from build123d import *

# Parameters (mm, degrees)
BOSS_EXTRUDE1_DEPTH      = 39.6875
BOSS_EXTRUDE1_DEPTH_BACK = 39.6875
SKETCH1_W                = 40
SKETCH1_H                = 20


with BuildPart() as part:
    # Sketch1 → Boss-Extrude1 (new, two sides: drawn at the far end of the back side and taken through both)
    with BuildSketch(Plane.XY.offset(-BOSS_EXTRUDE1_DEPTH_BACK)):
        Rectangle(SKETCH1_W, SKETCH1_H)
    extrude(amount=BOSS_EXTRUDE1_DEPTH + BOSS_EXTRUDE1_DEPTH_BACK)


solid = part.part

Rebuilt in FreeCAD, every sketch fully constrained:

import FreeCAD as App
import Part
import Sketcher

V = App.Vector

doc = App.newDocument("Part")
body = doc.addObject("PartDesign::Body", "Body")

sketch1 = doc.addObject("Sketcher::SketchObject", "Sketch")
body.addObject(sketch1)
sketch1.AttachmentSupport = (doc.XY_Plane, [""])
sketch1.MapMode = "FlatFace"
sketch1.addGeometry(Part.LineSegment(V(-20, 10, 0), V(-20, -10, 0)), False)
sketch1.addGeometry(Part.LineSegment(V(-20, -10, 0), V(20, -10, 0)), False)
sketch1.addGeometry(Part.LineSegment(V(20, -10, 0), V(20, 10, 0)), False)
sketch1.addGeometry(Part.LineSegment(V(20, 10, 0), V(-20, 10, 0)), False)
sketch1.addConstraint(Sketcher.Constraint("Coincident", 0, 2, 1, 1))
sketch1.addConstraint(Sketcher.Constraint("Coincident", 1, 2, 2, 1))
sketch1.addConstraint(Sketcher.Constraint("Coincident", 2, 2, 3, 1))
sketch1.addConstraint(Sketcher.Constraint("Coincident", 3, 2, 0, 1))
sketch1.addConstraint(Sketcher.Constraint("Vertical", 0))
sketch1.addConstraint(Sketcher.Constraint("Horizontal", 1))
sketch1.addConstraint(Sketcher.Constraint("Vertical", 2))
sketch1.addConstraint(Sketcher.Constraint("Horizontal", 3))
sketch1.addConstraint(Sketcher.Constraint("Symmetric", 0, 2, 2, 2, -1, 1))
sketch1.addConstraint(Sketcher.Constraint("DistanceX", 1, 1, 1, 2, 40.0))
sketch1.addConstraint(Sketcher.Constraint("DistanceY", 0, 2, 0, 1, 20.0))
pad1 = doc.addObject("PartDesign::Pad", "Pad")
body.addObject(pad1)
pad1.Profile = sketch1
pad1.Type = "TwoLengths"
pad1.Length = 39.6875
pad1.Length2 = 39.6875

doc.recompute()
